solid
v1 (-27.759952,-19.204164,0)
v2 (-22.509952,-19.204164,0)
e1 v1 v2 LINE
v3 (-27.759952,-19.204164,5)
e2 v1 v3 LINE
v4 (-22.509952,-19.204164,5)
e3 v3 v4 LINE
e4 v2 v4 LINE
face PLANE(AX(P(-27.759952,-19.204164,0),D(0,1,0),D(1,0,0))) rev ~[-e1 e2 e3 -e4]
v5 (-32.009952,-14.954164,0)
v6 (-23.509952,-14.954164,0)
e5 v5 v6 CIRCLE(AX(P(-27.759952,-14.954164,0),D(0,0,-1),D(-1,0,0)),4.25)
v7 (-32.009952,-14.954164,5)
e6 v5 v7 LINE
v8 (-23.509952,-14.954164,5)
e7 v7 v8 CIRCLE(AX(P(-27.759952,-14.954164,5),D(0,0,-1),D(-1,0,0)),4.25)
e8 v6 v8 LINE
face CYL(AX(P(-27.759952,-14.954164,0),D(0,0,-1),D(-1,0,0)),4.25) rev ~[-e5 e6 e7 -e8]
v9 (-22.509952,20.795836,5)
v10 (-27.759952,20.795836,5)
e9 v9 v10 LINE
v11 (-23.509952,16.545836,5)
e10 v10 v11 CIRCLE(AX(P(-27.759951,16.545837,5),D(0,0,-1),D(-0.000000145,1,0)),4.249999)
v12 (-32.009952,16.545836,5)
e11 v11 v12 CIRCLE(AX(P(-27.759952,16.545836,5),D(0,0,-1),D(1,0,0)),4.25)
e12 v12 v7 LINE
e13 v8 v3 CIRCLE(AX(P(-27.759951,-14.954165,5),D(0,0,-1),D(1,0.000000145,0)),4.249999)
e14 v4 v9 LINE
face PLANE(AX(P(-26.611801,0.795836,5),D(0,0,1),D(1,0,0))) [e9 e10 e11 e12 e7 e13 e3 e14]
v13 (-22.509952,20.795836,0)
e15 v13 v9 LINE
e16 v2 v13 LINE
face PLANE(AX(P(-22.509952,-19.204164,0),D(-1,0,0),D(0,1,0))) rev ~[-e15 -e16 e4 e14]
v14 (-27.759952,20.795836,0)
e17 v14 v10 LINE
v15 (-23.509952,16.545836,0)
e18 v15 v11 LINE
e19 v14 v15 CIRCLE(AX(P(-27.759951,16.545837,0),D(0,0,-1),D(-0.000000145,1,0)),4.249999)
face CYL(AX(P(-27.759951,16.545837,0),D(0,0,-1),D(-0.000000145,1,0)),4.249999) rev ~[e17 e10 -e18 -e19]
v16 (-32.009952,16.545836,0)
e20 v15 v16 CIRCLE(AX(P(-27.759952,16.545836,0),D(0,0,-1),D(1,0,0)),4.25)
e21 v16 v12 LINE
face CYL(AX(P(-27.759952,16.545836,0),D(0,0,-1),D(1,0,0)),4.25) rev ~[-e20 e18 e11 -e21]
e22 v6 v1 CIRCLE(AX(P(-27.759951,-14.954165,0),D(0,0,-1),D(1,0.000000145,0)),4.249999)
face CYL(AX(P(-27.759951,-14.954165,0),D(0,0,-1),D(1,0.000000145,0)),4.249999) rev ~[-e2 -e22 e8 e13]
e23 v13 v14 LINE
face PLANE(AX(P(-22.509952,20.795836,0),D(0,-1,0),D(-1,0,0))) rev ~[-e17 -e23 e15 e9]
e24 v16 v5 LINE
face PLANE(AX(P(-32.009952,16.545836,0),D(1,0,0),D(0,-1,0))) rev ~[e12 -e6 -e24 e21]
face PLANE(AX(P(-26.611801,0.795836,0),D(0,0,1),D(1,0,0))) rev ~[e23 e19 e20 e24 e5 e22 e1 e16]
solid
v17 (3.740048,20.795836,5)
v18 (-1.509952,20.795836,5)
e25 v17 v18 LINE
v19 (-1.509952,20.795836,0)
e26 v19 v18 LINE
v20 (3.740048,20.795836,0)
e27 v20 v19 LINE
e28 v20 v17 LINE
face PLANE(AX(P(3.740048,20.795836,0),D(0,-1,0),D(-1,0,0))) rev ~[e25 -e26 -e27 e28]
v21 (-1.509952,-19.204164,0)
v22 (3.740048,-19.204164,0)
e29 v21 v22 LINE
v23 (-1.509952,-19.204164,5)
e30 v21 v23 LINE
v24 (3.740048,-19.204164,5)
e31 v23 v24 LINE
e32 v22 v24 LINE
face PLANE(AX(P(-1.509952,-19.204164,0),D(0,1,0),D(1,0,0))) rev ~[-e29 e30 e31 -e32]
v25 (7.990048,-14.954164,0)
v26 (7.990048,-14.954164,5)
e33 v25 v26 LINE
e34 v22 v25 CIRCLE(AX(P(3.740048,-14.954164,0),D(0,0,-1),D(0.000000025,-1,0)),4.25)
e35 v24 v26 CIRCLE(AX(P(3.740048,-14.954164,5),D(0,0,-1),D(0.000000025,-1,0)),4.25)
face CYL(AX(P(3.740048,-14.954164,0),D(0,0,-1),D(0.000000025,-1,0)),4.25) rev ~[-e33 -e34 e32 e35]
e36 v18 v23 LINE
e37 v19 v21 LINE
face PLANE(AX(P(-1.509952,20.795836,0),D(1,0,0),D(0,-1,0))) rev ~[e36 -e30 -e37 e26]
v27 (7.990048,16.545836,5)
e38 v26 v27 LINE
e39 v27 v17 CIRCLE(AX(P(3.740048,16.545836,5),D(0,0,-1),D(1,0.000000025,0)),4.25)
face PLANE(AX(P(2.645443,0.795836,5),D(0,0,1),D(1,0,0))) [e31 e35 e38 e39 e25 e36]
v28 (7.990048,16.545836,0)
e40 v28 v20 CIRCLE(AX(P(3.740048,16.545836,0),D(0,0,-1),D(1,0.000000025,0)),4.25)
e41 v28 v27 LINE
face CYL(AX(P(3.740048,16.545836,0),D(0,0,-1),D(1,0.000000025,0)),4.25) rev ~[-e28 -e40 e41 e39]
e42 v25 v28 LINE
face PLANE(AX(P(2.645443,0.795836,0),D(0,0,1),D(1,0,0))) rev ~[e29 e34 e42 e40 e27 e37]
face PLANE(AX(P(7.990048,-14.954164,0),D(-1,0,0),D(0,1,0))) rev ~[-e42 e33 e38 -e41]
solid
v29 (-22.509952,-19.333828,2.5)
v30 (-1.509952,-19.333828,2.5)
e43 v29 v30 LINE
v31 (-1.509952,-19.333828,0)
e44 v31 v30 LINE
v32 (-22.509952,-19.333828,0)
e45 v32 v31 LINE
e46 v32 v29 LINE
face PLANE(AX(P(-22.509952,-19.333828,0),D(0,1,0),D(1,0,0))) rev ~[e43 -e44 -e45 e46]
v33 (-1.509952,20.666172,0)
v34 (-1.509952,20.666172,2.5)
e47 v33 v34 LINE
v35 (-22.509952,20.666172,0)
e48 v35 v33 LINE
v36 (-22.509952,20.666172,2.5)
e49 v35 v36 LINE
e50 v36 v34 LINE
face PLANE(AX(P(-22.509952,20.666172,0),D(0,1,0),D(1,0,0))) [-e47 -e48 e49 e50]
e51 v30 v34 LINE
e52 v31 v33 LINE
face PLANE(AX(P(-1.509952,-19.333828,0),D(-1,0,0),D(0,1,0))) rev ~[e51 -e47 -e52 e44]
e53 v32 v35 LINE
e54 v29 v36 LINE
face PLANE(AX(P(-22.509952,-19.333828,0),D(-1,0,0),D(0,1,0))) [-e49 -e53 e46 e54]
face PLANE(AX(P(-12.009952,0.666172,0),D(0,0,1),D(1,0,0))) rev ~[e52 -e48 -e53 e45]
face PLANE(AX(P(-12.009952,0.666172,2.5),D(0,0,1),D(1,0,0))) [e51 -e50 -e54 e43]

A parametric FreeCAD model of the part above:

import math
import FreeCAD as App
import Part
import Sketcher
from FreeCAD import Vector
Q = App.Units.Quantity

doc = App.newDocument("Part")
body = doc.addObject("PartDesign::Body", "Body")
body.AllowCompound = True

# Sketch on XY plane
sketch1 = body.newObject("Sketcher::SketchObject", "Sketch")
sketch1.AttachmentSupport = (doc.getObject("XY_Plane"), [""])
sketch1.MapMode = "FlatFace"
sketch1.addGeometry([
    Part.LineSegment(Vector(-22.5, -19.2, 0), Vector(-22.5, 20.8, 0)),  # 0
    Part.LineSegment(Vector(-22.5, 20.8, 0), Vector(-27.8, 20.8, 0)),  # 1
    Part.ArcOfCircle(Part.Circle(Vector(-27.8, 16.5, 0), Vector(0, 0, 1), 4.2), math.radians(0), math.radians(90)),  # 2
    Part.ArcOfCircle(Part.Circle(Vector(-27.8, 16.5, 0), Vector(0, 0, 1), 4.2), math.radians(180), math.radians(360)),  # 3
    Part.LineSegment(Vector(-32, 16.5, 0), Vector(-32, -15, 0)),  # 4
    Part.ArcOfCircle(Part.Circle(Vector(-27.8, -15, 0), Vector(0, 0, 1), 4.2), math.radians(0), math.radians(180)),  # 5
    Part.ArcOfCircle(Part.Circle(Vector(-27.8, -15, 0), Vector(0, 0, 1), 4.2), math.radians(-90), math.radians(0)),  # 6
    Part.LineSegment(Vector(-27.8, -19.2, 0), Vector(-22.5, -19.2, 0)),  # 7
    Part.LineSegment(Vector(3.7, 20.8, 0), Vector(-1.5, 20.8, 0)),  # 8
    Part.LineSegment(Vector(-1.5, 20.8, 0), Vector(-1.5, -19.2, 0)),  # 9
    Part.LineSegment(Vector(-1.5, -19.2, 0), Vector(3.7, -19.2, 0)),  # 10
    Part.ArcOfCircle(Part.Circle(Vector(3.7, -15, 0), Vector(0, 0, 1), 4.3), math.radians(0), math.radians(270)),  # 11
    Part.LineSegment(Vector(8, -15, 0), Vector(8, 16.5, 0)),  # 12
    Part.ArcOfCircle(Part.Circle(Vector(3.7, 16.5, 0), Vector(0, 0, 1), 4.3), math.radians(90), math.radians(360)),  # 13
], False)
sketch1.addConstraint([
    Sketcher.Constraint("Coincident", 0, 2, 1, 1),
    Sketcher.Constraint("Tangent", 1, 2, 2, 2),
    Sketcher.Constraint("Tangent", 2, 1, 3, 2),
    Sketcher.Constraint("Tangent", 3, 1, 4, 1),
    Sketcher.Constraint("Tangent", 4, 2, 5, 2),
    Sketcher.Constraint("Tangent", 5, 1, 6, 2),
    Sketcher.Constraint("Tangent", 6, 1, 7, 1),
    Sketcher.Constraint("Coincident", 7, 2, 0, 1),
    Sketcher.Constraint("Coincident", 8, 2, 9, 1),
    Sketcher.Constraint("Coincident", 9, 2, 10, 1),
    Sketcher.Constraint("Tangent", 10, 2, 11, 2),
    Sketcher.Constraint("Tangent", 11, 1, 12, 1),
    Sketcher.Constraint("Tangent", 12, 2, 13, 2),
    Sketcher.Constraint("Tangent", 13, 1, 8, 1),
    Sketcher.Constraint("Vertical", 0),
    Sketcher.Constraint("Horizontal", 1),
    Sketcher.Constraint("Vertical", 4),
    Sketcher.Constraint("Horizontal", 7),
    Sketcher.Constraint("Horizontal", 8),
    Sketcher.Constraint("Vertical", 9),
    Sketcher.Constraint("Horizontal", 10),
    Sketcher.Constraint("Vertical", 12),
    Sketcher.Constraint("Equal", 2, 3),
    Sketcher.Constraint("Equal", 3, 5),
    Sketcher.Constraint("Equal", 5, 6),
    Sketcher.Constraint("Equal", 6, 11),
    Sketcher.Constraint("Equal", 11, 13),
    Sketcher.Constraint("Horizontal", 6, 3, 11, 3),
    Sketcher.Constraint("Horizontal", 3, 3, 13, 3),
    Sketcher.Constraint("Horizontal", 13, 3, 2, 1),
    Sketcher.Constraint("Horizontal", 4, 2, 5, 1),
    Sketcher.Constraint("Equal", 7, 8),
    Sketcher.Constraint("DistanceY", 0, 1, 0, 2, Q("40 mm")),
    Sketcher.Constraint("Radius", 2, Q("4.249999 mm")),
    Sketcher.Constraint("DistanceX", 2, 1, 0, 2, Q("1 mm")),
    Sketcher.Constraint("DistanceX", 0, 2, 8, 2, Q("21 mm")),
    Sketcher.Constraint("DistanceX", 2, 3, -1, 1, Q("27.759951 mm")),
    Sketcher.Constraint("DistanceY", -1, 1, 2, 3, Q("16.545837 mm")),
])
pad1 = body.newObject("PartDesign::Pad", "Pad")
pad1.Profile = sketch1
pad1.Length = 5
body2 = doc.addObject("PartDesign::Body", "Body001")

# Sketch on XY plane
sketch2 = body2.newObject("Sketcher::SketchObject", "Sketch001")
sketch2.AttachmentSupport = (doc.getObject("XY_Plane001"), [""])
sketch2.MapMode = "FlatFace"
sketch2.addGeometry([
    Part.LineSegment(Vector(-23, 21, 0), Vector(-23, -19, 0)),
    Part.LineSegment(Vector(-23, -19, 0), Vector(-2, -19, 0)),
    Part.LineSegment(Vector(-2, -19, 0), Vector(-2, 21, 0)),
    Part.LineSegment(Vector(-2, 21, 0), Vector(-23, 21, 0)),
], False)
sketch2.addConstraint([
    Sketcher.Constraint("Coincident", 0, 2, 1, 1),
    Sketcher.Constraint("Coincident", 1, 2, 2, 1),
    Sketcher.Constraint("Coincident", 2, 2, 3, 1),
    Sketcher.Constraint("Coincident", 3, 2, 0, 1),
    Sketcher.Constraint("Vertical", 0),
    Sketcher.Constraint("Horizontal", 1),
    Sketcher.Constraint("Vertical", 2),
    Sketcher.Constraint("Horizontal", 3),
    Sketcher.Constraint("DistanceX", 1, 1, 1, 2, Q("21 mm")),
    Sketcher.Constraint("DistanceY", 0, 2, 0, 1, Q("40 mm")),
    Sketcher.Constraint("DistanceX", 0, 2, -1, 1, Q("22.509952 mm")),
    Sketcher.Constraint("DistanceY", 0, 2, -1, 1, Q("19.333828 mm")),
])
pad2 = body2.newObject("PartDesign::Pad", "Pad001")
pad2.Profile = sketch2
pad2.Length = 2.5

doc.recompute()
